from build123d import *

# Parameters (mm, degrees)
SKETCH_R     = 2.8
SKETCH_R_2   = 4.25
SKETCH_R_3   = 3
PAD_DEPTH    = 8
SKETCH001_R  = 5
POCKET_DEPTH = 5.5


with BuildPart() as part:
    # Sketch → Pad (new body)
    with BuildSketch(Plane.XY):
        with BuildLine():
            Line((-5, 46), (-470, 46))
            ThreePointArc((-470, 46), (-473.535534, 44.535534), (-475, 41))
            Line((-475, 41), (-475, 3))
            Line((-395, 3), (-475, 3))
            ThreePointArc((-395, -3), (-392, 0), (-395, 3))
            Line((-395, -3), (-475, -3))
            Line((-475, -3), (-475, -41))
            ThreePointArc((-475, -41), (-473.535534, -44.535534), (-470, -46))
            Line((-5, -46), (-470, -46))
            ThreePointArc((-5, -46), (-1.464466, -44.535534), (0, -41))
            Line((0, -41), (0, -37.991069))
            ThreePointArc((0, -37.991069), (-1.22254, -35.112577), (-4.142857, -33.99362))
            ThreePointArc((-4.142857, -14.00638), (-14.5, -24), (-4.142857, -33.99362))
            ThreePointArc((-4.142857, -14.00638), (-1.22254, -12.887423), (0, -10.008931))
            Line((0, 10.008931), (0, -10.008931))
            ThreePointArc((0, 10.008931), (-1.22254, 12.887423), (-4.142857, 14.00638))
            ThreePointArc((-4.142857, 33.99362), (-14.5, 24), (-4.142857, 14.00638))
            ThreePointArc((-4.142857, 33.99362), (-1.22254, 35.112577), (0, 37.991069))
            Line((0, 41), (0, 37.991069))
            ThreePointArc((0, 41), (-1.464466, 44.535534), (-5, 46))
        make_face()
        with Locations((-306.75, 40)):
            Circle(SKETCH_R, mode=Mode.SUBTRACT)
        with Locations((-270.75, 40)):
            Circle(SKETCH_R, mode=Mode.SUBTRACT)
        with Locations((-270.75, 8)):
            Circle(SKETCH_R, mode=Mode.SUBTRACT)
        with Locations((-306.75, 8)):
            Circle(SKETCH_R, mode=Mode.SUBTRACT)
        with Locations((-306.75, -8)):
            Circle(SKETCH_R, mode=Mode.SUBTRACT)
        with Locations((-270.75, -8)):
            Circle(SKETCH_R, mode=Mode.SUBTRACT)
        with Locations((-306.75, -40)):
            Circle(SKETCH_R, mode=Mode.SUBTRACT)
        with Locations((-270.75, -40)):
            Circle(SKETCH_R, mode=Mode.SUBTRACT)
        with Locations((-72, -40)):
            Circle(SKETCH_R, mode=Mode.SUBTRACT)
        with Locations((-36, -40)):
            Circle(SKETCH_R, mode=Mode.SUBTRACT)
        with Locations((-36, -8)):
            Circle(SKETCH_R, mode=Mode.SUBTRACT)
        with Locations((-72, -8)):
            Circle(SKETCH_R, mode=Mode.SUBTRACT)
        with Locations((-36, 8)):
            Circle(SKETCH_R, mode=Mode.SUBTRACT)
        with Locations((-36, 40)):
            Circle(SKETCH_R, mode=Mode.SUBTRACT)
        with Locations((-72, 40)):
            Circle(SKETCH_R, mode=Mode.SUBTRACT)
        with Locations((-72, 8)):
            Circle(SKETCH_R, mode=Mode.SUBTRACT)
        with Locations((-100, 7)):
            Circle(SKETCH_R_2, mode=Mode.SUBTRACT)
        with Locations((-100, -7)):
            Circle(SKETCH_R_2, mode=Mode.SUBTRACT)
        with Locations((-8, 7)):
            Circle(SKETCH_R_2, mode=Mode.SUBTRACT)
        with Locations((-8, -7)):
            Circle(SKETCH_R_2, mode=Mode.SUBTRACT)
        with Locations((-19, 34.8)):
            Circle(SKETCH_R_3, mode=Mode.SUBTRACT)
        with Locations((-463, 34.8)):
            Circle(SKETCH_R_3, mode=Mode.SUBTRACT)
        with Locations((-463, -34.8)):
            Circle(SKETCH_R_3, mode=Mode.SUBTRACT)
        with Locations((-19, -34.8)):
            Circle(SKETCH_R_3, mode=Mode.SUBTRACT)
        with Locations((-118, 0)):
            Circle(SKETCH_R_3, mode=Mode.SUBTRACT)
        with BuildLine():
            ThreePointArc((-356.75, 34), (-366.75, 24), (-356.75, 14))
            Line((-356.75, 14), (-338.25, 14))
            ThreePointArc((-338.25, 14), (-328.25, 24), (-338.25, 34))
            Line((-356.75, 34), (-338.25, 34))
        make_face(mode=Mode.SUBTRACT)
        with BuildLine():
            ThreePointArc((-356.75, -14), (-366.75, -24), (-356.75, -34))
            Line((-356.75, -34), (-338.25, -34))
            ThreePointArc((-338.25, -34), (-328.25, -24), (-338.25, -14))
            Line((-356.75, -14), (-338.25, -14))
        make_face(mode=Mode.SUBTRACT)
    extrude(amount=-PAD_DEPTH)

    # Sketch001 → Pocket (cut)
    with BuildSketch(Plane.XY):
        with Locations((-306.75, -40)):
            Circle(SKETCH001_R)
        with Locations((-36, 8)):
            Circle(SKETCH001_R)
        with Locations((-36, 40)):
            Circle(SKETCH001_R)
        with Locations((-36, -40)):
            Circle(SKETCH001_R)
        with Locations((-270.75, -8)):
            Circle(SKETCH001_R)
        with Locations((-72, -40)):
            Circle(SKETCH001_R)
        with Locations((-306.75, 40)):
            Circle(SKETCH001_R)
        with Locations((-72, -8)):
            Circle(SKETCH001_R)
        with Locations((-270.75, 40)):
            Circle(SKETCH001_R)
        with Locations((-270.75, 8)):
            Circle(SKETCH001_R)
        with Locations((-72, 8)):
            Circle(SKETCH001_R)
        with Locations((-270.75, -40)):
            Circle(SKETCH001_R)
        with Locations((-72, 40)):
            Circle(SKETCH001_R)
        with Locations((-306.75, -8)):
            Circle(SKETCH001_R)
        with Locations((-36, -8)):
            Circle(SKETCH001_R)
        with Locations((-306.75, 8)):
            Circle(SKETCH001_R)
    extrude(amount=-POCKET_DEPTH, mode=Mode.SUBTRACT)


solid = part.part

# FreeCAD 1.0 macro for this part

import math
import FreeCAD as App
import Part
import Sketcher

V = App.Vector
Q = App.Units.Quantity

doc = App.newDocument("Part")
body = doc.addObject("PartDesign::Body", "Body")

sketch1 = body.newObject("Sketcher::SketchObject", "Sketch")
sketch1.AttachmentSupport = (doc.getObject("XY_Plane"), [""])
sketch1.MapMode = "FlatFace"
sketch1.addGeometry(Part.LineSegment(V(-5, 46, 0), V(-470, 46, 0)), False)
sketch1.addGeometry(Part.ArcOfCircle(Part.Circle(V(-470, 41, 0), V(0, 0, 1), 5), math.radians(90), math.radians(180)), False)
sketch1.addGeometry(Part.LineSegment(V(-475, 41, 0), V(-475, 3, 0)), False)
sketch1.addGeometry(Part.LineSegment(V(-475, 3, 0), V(-395, 3, 0)), False)
sketch1.addGeometry(Part.ArcOfCircle(Part.Circle(V(-395, 0, 0), V(0, 0, 1), 3), math.radians(-90), math.radians(90)), False)
sketch1.addGeometry(Part.LineSegment(V(-395, -3, 0), V(-475, -3, 0)), False)
sketch1.addGeometry(Part.LineSegment(V(-475, -3, 0), V(-475, -41, 0)), False)
sketch1.addGeometry(Part.ArcOfCircle(Part.Circle(V(-470, -41, 0), V(0, 0, 1), 5), math.radians(180), math.radians(270)), False)
sketch1.addGeometry(Part.LineSegment(V(-470, -46, 0), V(-5, -46, 0)), False)
sketch1.addGeometry(Part.ArcOfCircle(Part.Circle(V(-5, -41, 0), V(0, 0, 1), 5), math.radians(-90), math.radians(0)), False)
sketch1.addGeometry(Part.LineSegment(V(0, -41, 0), V(0, -38, 0)), False)
sketch1.addGeometry(Part.ArcOfCircle(Part.Circle(V(-4, -38, 0), V(0, 0, 1), 4), math.radians(0), math.radians(92)), False)
sketch1.addGeometry(Part.ArcOfCircle(Part.Circle(V(-4.5, -24, 0), V(0, 0, 1), 10), math.radians(88), math.radians(272)), False)
sketch1.addGeometry(Part.ArcOfCircle(Part.Circle(V(-4, -10, 0), V(0, 0, 1), 4), math.radians(-92), math.radians(0)), False)
sketch1.addGeometry(Part.LineSegment(V(0, -10, 0), V(0, 10, 0)), False)
sketch1.addGeometry(Part.ArcOfCircle(Part.Circle(V(-4, 10, 0), V(0, 0, 1), 4), math.radians(0), math.radians(92)), False)
sketch1.addGeometry(Part.ArcOfCircle(Part.Circle(V(-4.5, 24, 0), V(0, 0, 1), 10), math.radians(88), math.radians(272)), False)
sketch1.addGeometry(Part.ArcOfCircle(Part.Circle(V(-4, 38, 0), V(0, 0, 1), 4), math.radians(-92), math.radians(0)), False)
sketch1.addGeometry(Part.LineSegment(V(0, 38, 0), V(0, 41, 0)), False)
sketch1.addGeometry(Part.ArcOfCircle(Part.Circle(V(-5, 41, 0), V(0, 0, 1), 5), math.radians(0), math.radians(90)), False)
sketch1.addGeometry(Part.Circle(V(-463, -34.8, 0), V(0, 0, 1), 3), False)
sketch1.addGeometry(Part.Circle(V(-306.8, -40, 0), V(0, 0, 1), 2.8), False)
sketch1.addGeometry(Part.Circle(V(-270.8, -40, 0), V(0, 0, 1), 2.8), False)
sketch1.addGeometry(Part.ArcOfCircle(Part.Circle(V(-356.8, -24, 0), V(0, 0, 1), 10), math.radians(90), math.radians(270)), False)
sketch1.addGeometry(Part.LineSegment(V(-356.8, -14, 0), V(-338.2, -14, 0)), False)
sketch1.addGeometry(Part.ArcOfCircle(Part.Circle(V(-338.2, -24, 0), V(0, 0, 1), 10), math.radians(-90), math.radians(90)), False)
sketch1.addGeometry(Part.LineSegment(V(-338.2, -34, 0), V(-356.8, -34, 0)), False)
sketch1.addGeometry(Part.Circle(V(-306.8, -8, 0), V(0, 0, 1), 2.8), False)
sketch1.addGeometry(Part.Circle(V(-270.8, -8, 0), V(0, 0, 1), 2.8), False)
sketch1.addGeometry(Part.Circle(V(-72, -40, 0), V(0, 0, 1), 2.8), False)
sketch1.addGeometry(Part.Circle(V(-36, -40, 0), V(0, 0, 1), 2.8), False)
sketch1.addGeometry(Part.Circle(V(-19, -34.8, 0), V(0, 0, 1), 3), False)
sketch1.addGeometry(Part.Circle(V(-100, -7, 0), V(0, 0, 1), 4.2), False)
sketch1.addGeometry(Part.Circle(V(-72, -8, 0), V(0, 0, 1), 2.8), False)
sketch1.addGeometry(Part.Circle(V(-118, 0, 0), V(0, 0, 1), 3), False)
sketch1.addGeometry(Part.Circle(V(-36, -8, 0), V(0, 0, 1), 2.8), False)
sketch1.addGeometry(Part.Circle(V(-8, -7, 0), V(0, 0, 1), 4.2), False)
sketch1.addGeometry(Part.Circle(V(-306.8, 8, 0), V(0, 0, 1), 2.8), False)
sketch1.addGeometry(Part.Circle(V(-270.8, 8, 0), V(0, 0, 1), 2.8), False)
sketch1.addGeometry(Part.Circle(V(-463, 34.8, 0), V(0, 0, 1), 3), False)
sketch1.addGeometry(Part.ArcOfCircle(Part.Circle(V(-356.8, 24, 0), V(0, 0, 1), 10), math.radians(90), math.radians(270)), False)
sketch1.addGeometry(Part.LineSegment(V(-356.8, 34, 0), V(-338.2, 34, 0)), False)
sketch1.addGeometry(Part.ArcOfCircle(Part.Circle(V(-338.2, 24, 0), V(0, 0, 1), 10), math.radians(-90), math.radians(90)), False)
sketch1.addGeometry(Part.LineSegment(V(-338.2, 14, 0), V(-356.8, 14, 0)), False)
sketch1.addGeometry(Part.Circle(V(-306.8, 40, 0), V(0, 0, 1), 2.8), False)
sketch1.addGeometry(Part.Circle(V(-270.8, 40, 0), V(0, 0, 1), 2.8), False)
sketch1.addGeometry(Part.Circle(V(-100, 7, 0), V(0, 0, 1), 4.2), False)
sketch1.addGeometry(Part.Circle(V(-72, 8, 0), V(0, 0, 1), 2.8), False)
sketch1.addGeometry(Part.Circle(V(-36, 8, 0), V(0, 0, 1), 2.8), False)
sketch1.addGeometry(Part.Circle(V(-8, 7, 0), V(0, 0, 1), 4.2), False)
sketch1.addGeometry(Part.Circle(V(-72, 40, 0), V(0, 0, 1), 2.8), False)
sketch1.addGeometry(Part.Circle(V(-19, 34.8, 0), V(0, 0, 1), 3), False)
sketch1.addGeometry(Part.Circle(V(-36, 40, 0), V(0, 0, 1), 2.8), False)
sketch1.addConstraint(Sketcher.Constraint("Tangent", 0, 2, 1, 1))
sketch1.addConstraint(Sketcher.Constraint("Tangent", 1, 2, 2, 1))
sketch1.addConstraint(Sketcher.Constraint("Coincident", 2, 2, 3, 1))
sketch1.addConstraint(Sketcher.Constraint("Tangent", 3, 2, 4, 2))
sketch1.addConstraint(Sketcher.Constraint("Tangent", 4, 1, 5, 1))
sketch1.addConstraint(Sketcher.Constraint("Coincident", 5, 2, 6, 1))
sketch1.addConstraint(Sketcher.Constraint("Tangent", 6, 2, 7, 1))
sketch1.addConstraint(Sketcher.Constraint("Tangent", 7, 2, 8, 1))
sketch1.addConstraint(Sketcher.Constraint("Tangent", 8, 2, 9, 1))
sketch1.addConstraint(Sketcher.Constraint("Tangent", 9, 2, 10, 1))
sketch1.addConstraint(Sketcher.Constraint("Tangent", 10, 2, 11, 1))
sketch1.addConstraint(Sketcher.Constraint("Tangent", 11, 2, 12, 2))
sketch1.addConstraint(Sketcher.Constraint("Tangent", 12, 1, 13, 1))
sketch1.addConstraint(Sketcher.Constraint("Tangent", 13, 2, 14, 1))
sketch1.addConstraint(Sketcher.Constraint("Tangent", 14, 2, 15, 1))
sketch1.addConstraint(Sketcher.Constraint("Tangent", 15, 2, 16, 2))
sketch1.addConstraint(Sketcher.Constraint("Tangent", 16, 1, 17, 1))
sketch1.addConstraint(Sketcher.Constraint("Tangent", 17, 2, 18, 1))
sketch1.addConstraint(Sketcher.Constraint("Tangent", 18, 2, 19, 1))
sketch1.addConstraint(Sketcher.Constraint("Tangent", 19, 2, 0, 1))
sketch1.addConstraint(Sketcher.Constraint("Tangent", 23, 1, 24, 1))
sketch1.addConstraint(Sketcher.Constraint("Tangent", 24, 2, 25, 2))
sketch1.addConstraint(Sketcher.Constraint("Tangent", 25, 1, 26, 1))
sketch1.addConstraint(Sketcher.Constraint("Tangent", 26, 2, 23, 2))
sketch1.addConstraint(Sketcher.Constraint("Tangent", 40, 1, 41, 1))
sketch1.addConstraint(Sketcher.Constraint("Tangent", 41, 2, 42, 2))
sketch1.addConstraint(Sketcher.Constraint("Tangent", 42, 1, 43, 1))
sketch1.addConstraint(Sketcher.Constraint("Tangent", 43, 2, 40, 2))
sketch1.addConstraint(Sketcher.Constraint("Horizontal", 0))
sketch1.addConstraint(Sketcher.Constraint("Vertical", 2))
sketch1.addConstraint(Sketcher.Constraint("Horizontal", 3))
sketch1.addConstraint(Sketcher.Constraint("Horizontal", 5))
sketch1.addConstraint(Sketcher.Constraint("Vertical", 6))
sketch1.addConstraint(Sketcher.Constraint("Horizontal", 8))
sketch1.addConstraint(Sketcher.Constraint("Vertical", 10))
sketch1.addConstraint(Sketcher.Constraint("Vertical", 14))
sketch1.addConstraint(Sketcher.Constraint("Vertical", 18))
sketch1.addConstraint(Sketcher.Constraint("Horizontal", 24))
sketch1.addConstraint(Sketcher.Constraint("Horizontal", 26))
sketch1.addConstraint(Sketcher.Constraint("Horizontal", 41))
sketch1.addConstraint(Sketcher.Constraint("Horizontal", 43))
sketch1.addConstraint(Sketcher.Constraint("Equal", 1, 7))
sketch1.addConstraint(Sketcher.Constraint("Equal", 7, 9))
sketch1.addConstraint(Sketcher.Constraint("Equal", 11, 13))
sketch1.addConstraint(Sketcher.Constraint("Equal", 13, 15))
sketch1.addConstraint(Sketcher.Constraint("Equal", 12, 16))
sketch1.addConstraint(Sketcher.Constraint("Equal", 15, 17))
sketch1.addConstraint(Sketcher.Constraint("Equal", 9, 19))
sketch1.addConstraint(Sketcher.Constraint("Equal", 4, 20))
sketch1.addConstraint(Sketcher.Constraint("Equal", 21, 22))
sketch1.addConstraint(Sketcher.Constraint("Equal", 16, 23))
sketch1.addConstraint(Sketcher.Constraint("Equal", 22, 27))
sketch1.addConstraint(Sketcher.Constraint("Equal", 27, 28))
sketch1.addConstraint(Sketcher.Constraint("Equal", 28, 29))
sketch1.addConstraint(Sketcher.Constraint("Equal", 29, 30))
sketch1.addConstraint(Sketcher.Constraint("Equal", 20, 31))
sketch1.addConstraint(Sketcher.Constraint("Equal", 30, 33))
sketch1.addConstraint(Sketcher.Constraint("Equal", 31, 34))
sketch1.addConstraint(Sketcher.Constraint("Equal", 33, 35))
sketch1.addConstraint(Sketcher.Constraint("Equal", 32, 36))
sketch1.addConstraint(Sketcher.Constraint("Equal", 35, 37))
sketch1.addConstraint(Sketcher.Constraint("Equal", 37, 38))
sketch1.addConstraint(Sketcher.Constraint("Equal", 34, 39))
sketch1.addConstraint(Sketcher.Constraint("Equal", 25, 40))
sketch1.addConstraint(Sketcher.Constraint("Equal", 38, 44))
sketch1.addConstraint(Sketcher.Constraint("Equal", 44, 45))
sketch1.addConstraint(Sketcher.Constraint("Equal", 36, 46))
sketch1.addConstraint(Sketcher.Constraint("Equal", 45, 47))
sketch1.addConstraint(Sketcher.Constraint("Equal", 47, 48))
sketch1.addConstraint(Sketcher.Constraint("Equal", 46, 49))
sketch1.addConstraint(Sketcher.Constraint("Equal", 48, 50))
sketch1.addConstraint(Sketcher.Constraint("Equal", 39, 51))
sketch1.addConstraint(Sketcher.Constraint("Equal", 50, 52))
sketch1.addConstraint(Sketcher.Constraint("Symmetric", 13, 2, 14, 2, -1, 1))
sketch1.addConstraint(Sketcher.Constraint("Symmetric", 10, 2, 17, 2, -1, 1))
sketch1.addConstraint(Sketcher.Constraint("Symmetric", 1, 3, 7, 3, -1))
sketch1.addConstraint(Sketcher.Constraint("Symmetric", 27, 3, 37, 3, -1))
sketch1.addConstraint(Sketcher.Constraint("Symmetric", 28, 3, 38, 3, -1))
sketch1.addConstraint(Sketcher.Constraint("Symmetric", 20, 3, 39, 3, -1))
sketch1.addConstraint(Sketcher.Constraint("Symmetric", 23, 3, 40, 3, -1))
sketch1.addConstraint(Sketcher.Constraint("Symmetric", 21, 3, 44, 3, -1))
sketch1.addConstraint(Sketcher.Constraint("Symmetric", 22, 3, 45, 3, -1))
sketch1.addConstraint(Sketcher.Constraint("Symmetric", 32, 3, 46, 3, -1))
sketch1.addConstraint(Sketcher.Constraint("Symmetric", 33, 3, 47, 3, -1))
sketch1.addConstraint(Sketcher.Constraint("Symmetric", 35, 3, 48, 3, -1))
sketch1.addConstraint(Sketcher.Constraint("Symmetric", 36, 3, 49, 3, -1))
sketch1.addConstraint(Sketcher.Constraint("Symmetric", 29, 3, 50, 3, -1))
sketch1.addConstraint(Sketcher.Constraint("Symmetric", 31, 3, 51, 3, -1))
sketch1.addConstraint(Sketcher.Constraint("Symmetric", 30, 3, 52, 3, -1))
sketch1.addConstraint(Sketcher.Constraint("PointOnObject", 4, 3, -1))
sketch1.addConstraint(Sketcher.Constraint("PointOnObject", 34, 3, -1))
sketch1.addConstraint(Sketcher.Constraint("PointOnObject", 9, 2, -2))
sketch1.addConstraint(Sketcher.Constraint("Horizontal", 21, 3, 22, 3))
sketch1.addConstraint(Sketcher.Constraint("Horizontal", 12, 3, 23, 3))
sketch1.addConstraint(Sketcher.Constraint("Horizontal", 27, 3, 28, 3))
sketch1.addConstraint(Sketcher.Constraint("Horizontal", 22, 3, 29, 3))
sketch1.addConstraint(Sketcher.Constraint("Horizontal", 29, 3, 30, 3))
sketch1.addConstraint(Sketcher.Constraint("Horizontal", 20, 3, 31, 3))
sketch1.addConstraint(Sketcher.Constraint("Horizontal", 28, 3, 33, 3))
sketch1.addConstraint(Sketcher.Constraint("Horizontal", 33, 3, 35, 3))
sketch1.addConstraint(Sketcher.Constraint("Horizontal", 32, 3, 36, 3))
sketch1.addConstraint(Sketcher.Constraint("Vertical", 21, 3, 27, 3))
sketch1.addConstraint(Sketcher.Constraint("Vertical", 22, 3, 28, 3))
sketch1.addConstraint(Sketcher.Constraint("Vertical", 29, 3, 33, 3))
sketch1.addConstraint(Sketcher.Constraint("Vertical", 30, 3, 35, 3))
sketch1.addConstraint(Sketcher.Constraint("Vertical", 25, 3, 42, 3))
sketch1.addConstraint(Sketcher.Constraint("Diameter", 20, Q("6 mm")))
sketch1.addConstraint(Sketcher.Constraint("Radius", 1, Q("5 mm")))
sketch1.addConstraint(Sketcher.Constraint("Radius", 11, Q("4.000001 mm")))
sketch1.addConstraint(Sketcher.Constraint("Radius", 12, Q("10 mm")))
sketch1.addConstraint(Sketcher.Constraint("Diameter", 21, Q("5.6 mm")))
sketch1.addConstraint(Sketcher.Constraint("Diameter", 32, Q("8.5 mm")))
sketch1.addConstraint(Sketcher.Constraint("DistanceX", 0, 2, 0, 1, Q("465 mm")))
sketch1.addConstraint(Sketcher.Constraint("DistanceX", 3, 1, 3, 2, Q("80 mm")))
sketch1.addConstraint(Sketcher.Constraint("DistanceY", 2, 2, 2, 1, Q("38 mm")))
sketch1.addConstraint(Sketcher.Constraint("DistanceX", 24, 1, 24, 2, Q("18.5 mm")))
sketch1.addConstraint(Sketcher.Constraint("DistanceY", 12, 3, -1, 1, Q("24 mm")))
sketch1.addConstraint(Sketcher.Constraint("DistanceX", 20, 3, -1, 1, Q("463 mm")))
sketch1.addConstraint(Sketcher.Constraint("DistanceY", 21, 3, -1, 1, Q("40 mm")))
sketch1.addConstraint(Sketcher.Constraint("DistanceY", 27, 3, -1, 1, Q("8 mm")))
sketch1.addConstraint(Sketcher.Constraint("DistanceX", 29, 3, -1, 1, Q("72 mm")))
sketch1.addConstraint(Sketcher.Constraint("DistanceX", 30, 3, -1, 1, Q("36 mm")))
sketch1.addConstraint(Sketcher.Constraint("DistanceX", 31, 3, -1, 1, Q("19 mm")))
sketch1.addConstraint(Sketcher.Constraint("DistanceX", 32, 3, -1, 1, Q("100 mm")))
sketch1.addConstraint(Sketcher.Constraint("DistanceY", 32, 3, -1, 1, Q("7 mm")))
sketch1.addConstraint(Sketcher.Constraint("DistanceX", 34, 3, -1, 1, Q("118 mm")))
sketch1.addConstraint(Sketcher.Constraint("DistanceX", 36, 3, -1, 1, Q("8 mm")))
sketch1.addConstraint(Sketcher.Constraint("DistanceX", 12, 3, -1, 1, Q("4.5 mm")))
sketch1.addConstraint(Sketcher.Constraint("DistanceY", 20, 3, -1, 1, Q("34.8 mm")))
sketch1.addConstraint(Sketcher.Constraint("DistanceX", 21, 3, -1, 1, Q("306.75 mm")))
sketch1.addConstraint(Sketcher.Constraint("DistanceX", 22, 3, -1, 1, Q("270.75 mm")))
sketch1.addConstraint(Sketcher.Constraint("DistanceX", 23, 3, -1, 1, Q("356.75 mm")))
pad1 = body.newObject("PartDesign::Pad", "Pad")
pad1.Profile = sketch1
pad1.Length = 8
pad1.Reversed = True

sketch2 = body.newObject("Sketcher::SketchObject", "Sketch001")
sketch2.AttachmentSupport = (doc.getObject("XY_Plane"), [""])
sketch2.MapMode = "FlatFace"
sketch2.addGeometry(Part.Circle(V(-307, -40, 0), V(0, 0, 1), 5), False)
sketch2.addGeometry(Part.Circle(V(-36, 8, 0), V(0, 0, 1), 5), False)
sketch2.addGeometry(Part.Circle(V(-36, 40, 0), V(0, 0, 1), 5), False)
sketch2.addGeometry(Part.Circle(V(-36, -40, 0), V(0, 0, 1), 5), False)
sketch2.addGeometry(Part.Circle(V(-271, -8, 0), V(0, 0, 1), 5), False)
sketch2.addGeometry(Part.Circle(V(-72, -40, 0), V(0, 0, 1), 5), False)
sketch2.addGeometry(Part.Circle(V(-307, 40, 0), V(0, 0, 1), 5), False)
sketch2.addGeometry(Part.Circle(V(-72, -8, 0), V(0, 0, 1), 5), False)
sketch2.addGeometry(Part.Circle(V(-271, 40, 0), V(0, 0, 1), 5), False)
sketch2.addGeometry(Part.Circle(V(-271, 8, 0), V(0, 0, 1), 5), False)
sketch2.addGeometry(Part.Circle(V(-72, 8, 0), V(0, 0, 1), 5), False)
sketch2.addGeometry(Part.Circle(V(-271, -40, 0), V(0, 0, 1), 5), False)
sketch2.addGeometry(Part.Circle(V(-72, 40, 0), V(0, 0, 1), 5), False)
sketch2.addGeometry(Part.Circle(V(-307, -8, 0), V(0, 0, 1), 5), False)
sketch2.addGeometry(Part.Circle(V(-36, -8, 0), V(0, 0, 1), 5), False)
sketch2.addGeometry(Part.Circle(V(-307, 8, 0), V(0, 0, 1), 5), False)
sketch2.addConstraint(Sketcher.Constraint("Equal", 0, 1))
sketch2.addConstraint(Sketcher.Constraint("Equal", 1, 2))
sketch2.addConstraint(Sketcher.Constraint("Equal", 2, 3))
sketch2.addConstraint(Sketcher.Constraint("Equal", 3, 4))
sketch2.addConstraint(Sketcher.Constraint("Equal", 4, 5))
sketch2.addConstraint(Sketcher.Constraint("Equal", 5, 6))
sketch2.addConstraint(Sketcher.Constraint("Equal", 6, 7))
sketch2.addConstraint(Sketcher.Constraint("Equal", 7, 8))
sketch2.addConstraint(Sketcher.Constraint("Equal", 8, 9))
sketch2.addConstraint(Sketcher.Constraint("Equal", 9, 10))
sketch2.addConstraint(Sketcher.Constraint("Equal", 10, 11))
sketch2.addConstraint(Sketcher.Constraint("Equal", 11, 12))
sketch2.addConstraint(Sketcher.Constraint("Equal", 12, 13))
sketch2.addConstraint(Sketcher.Constraint("Equal", 13, 14))
sketch2.addConstraint(Sketcher.Constraint("Equal", 14, 15))
sketch2.addConstraint(Sketcher.Constraint("Symmetric", 2, 3, 3, 3, -1))
sketch2.addConstraint(Sketcher.Constraint("Symmetric", 0, 3, 6, 3, -1))
sketch2.addConstraint(Sketcher.Constraint("Symmetric", 4, 3, 9, 3, -1))
sketch2.addConstraint(Sketcher.Constraint("Symmetric", 7, 3, 10, 3, -1))
sketch2.addConstraint(Sketcher.Constraint("Symmetric", 8, 3, 11, 3, -1))
sketch2.addConstraint(Sketcher.Constraint("Symmetric", 5, 3, 12, 3, -1))
sketch2.addConstraint(Sketcher.Constraint("Symmetric", 1, 3, 14, 3, -1))
sketch2.addConstraint(Sketcher.Constraint("Symmetric", 13, 3, 15, 3, -1))
sketch2.addConstraint(Sketcher.Constraint("Horizontal", 0, 3, 3, 3))
sketch2.addConstraint(Sketcher.Constraint("Horizontal", 3, 3, 5, 3))
sketch2.addConstraint(Sketcher.Constraint("Horizontal", 4, 3, 7, 3))
sketch2.addConstraint(Sketcher.Constraint("Horizontal", 6, 3, 8, 3))
sketch2.addConstraint(Sketcher.Constraint("Horizontal", 1, 3, 9, 3))
sketch2.addConstraint(Sketcher.Constraint("Horizontal", 7, 3, 13, 3))
sketch2.addConstraint(Sketcher.Constraint("Vertical", 1, 3, 2, 3))
sketch2.addConstraint(Sketcher.Constraint("Vertical", 5, 3, 7, 3))
sketch2.addConstraint(Sketcher.Constraint("Vertical", 4, 3, 8, 3))
sketch2.addConstraint(Sketcher.Constraint("Vertical", 6, 3, 13, 3))
sketch2.addConstraint(Sketcher.Constraint("Diameter", 0, Q("10 mm")))
sketch2.addConstraint(Sketcher.Constraint("DistanceY", 0, 3, -1, 1, Q("40 mm")))
sketch2.addConstraint(Sketcher.Constraint("DistanceX", 1, 3, -1, 1, Q("36 mm")))
sketch2.addConstraint(Sketcher.Constraint("DistanceY", -1, 1, 1, 3, Q("8 mm")))
sketch2.addConstraint(Sketcher.Constraint("DistanceX", 5, 3, -1, 1, Q("72 mm")))
sketch2.addConstraint(Sketcher.Constraint("DistanceX", 0, 3, 4, 3, Q("36 mm")))
sketch2.addConstraint(Sketcher.Constraint("DistanceX", 0, 3, -1, 1, Q("306.75 mm")))
pocket1 = body.newObject("PartDesign::Pocket", "Pocket")
pocket1.Profile = sketch2
pocket1.Length = 5.5

doc.recompute()
